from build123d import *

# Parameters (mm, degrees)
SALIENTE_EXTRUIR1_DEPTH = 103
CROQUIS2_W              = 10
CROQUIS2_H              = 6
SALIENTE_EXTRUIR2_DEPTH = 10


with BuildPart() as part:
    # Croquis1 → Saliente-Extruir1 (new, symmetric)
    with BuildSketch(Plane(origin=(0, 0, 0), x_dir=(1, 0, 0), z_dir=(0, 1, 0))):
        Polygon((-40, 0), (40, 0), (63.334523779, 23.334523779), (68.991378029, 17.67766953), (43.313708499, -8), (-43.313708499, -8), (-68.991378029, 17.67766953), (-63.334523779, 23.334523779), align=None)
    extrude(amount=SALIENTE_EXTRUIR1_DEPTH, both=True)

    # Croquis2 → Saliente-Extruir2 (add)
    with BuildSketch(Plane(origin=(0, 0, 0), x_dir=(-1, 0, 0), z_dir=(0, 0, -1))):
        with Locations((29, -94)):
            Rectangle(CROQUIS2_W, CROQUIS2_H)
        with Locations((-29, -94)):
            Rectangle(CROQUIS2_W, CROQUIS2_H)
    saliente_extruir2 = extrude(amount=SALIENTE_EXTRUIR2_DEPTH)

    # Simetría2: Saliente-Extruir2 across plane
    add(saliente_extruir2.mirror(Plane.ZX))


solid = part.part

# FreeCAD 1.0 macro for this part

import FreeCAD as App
import Part
import Sketcher
Q = App.Units.Quantity

doc = App.newDocument("Part")
params = doc.addObject("Spreadsheet::Sheet", "Params")
for row, (alias, value) in enumerate([
    ("sketch1_width", "80 mm"),
    ("sketch1_length", "33 mm"),
    ("sketch1_length2", "8 mm"),
    ("pad1_length", "206 mm"),
    ("sketch2_width", "10 mm"),
    ("sketch2_height", "6 mm"),
    ("pad2_length", "10 mm"),
], start=1):
    params.set(f"A{row}", alias)
    params.set(f"B{row}", "=" + value)
    params.setAlias(f"B{row}", alias)

body = doc.addObject("PartDesign::Body", "Body")

# Sketch on XZ plane
sketch1 = doc.addObject("Sketcher::SketchObject", "Sketch")
body.addObject(sketch1)
sketch1.AttachmentSupport = (doc.XZ_Plane, [""])
sketch1.MapMode = "FlatFace"
sketch1.addGeometry([
    Part.LineSegment(App.Vector(40, 0, 0), App.Vector(-40, 0, 0)),  # 0
    Part.LineSegment(App.Vector(-40, 0, 0), App.Vector(-63.334524, -23.334524, 0)),  # 1
    Part.LineSegment(App.Vector(-63.334524, -23.334524, 0), App.Vector(-68.991378, -17.67767, 0)),  # 2
    Part.LineSegment(App.Vector(-68.991378, -17.67767, 0), App.Vector(-43.313708, 8, 0)),  # 3
    Part.LineSegment(App.Vector(-43.313708, 8, 0), App.Vector(43.313708, 8, 0)),  # 4
    Part.LineSegment(App.Vector(43.313708, 8, 0), App.Vector(68.991378, -17.67767, 0)),  # 5
    Part.LineSegment(App.Vector(68.991378, -17.67767, 0), App.Vector(63.334524, -23.334524, 0)),  # 6
    Part.LineSegment(App.Vector(63.334524, -23.334524, 0), App.Vector(40, 0, 0)),  # 7
], False)
sketch1.addConstraint([
    Sketcher.Constraint("Coincident", 0, 2, 1, 1),
    Sketcher.Constraint("Coincident", 1, 2, 2, 1),
    Sketcher.Constraint("Coincident", 2, 2, 3, 1),
    Sketcher.Constraint("Coincident", 3, 2, 4, 1),
    Sketcher.Constraint("Coincident", 4, 2, 5, 1),
    Sketcher.Constraint("Coincident", 5, 2, 6, 1),
    Sketcher.Constraint("Coincident", 6, 2, 7, 1),
    Sketcher.Constraint("Coincident", 7, 2, 0, 1),
    Sketcher.Constraint("Horizontal", 0),
    Sketcher.Constraint("Horizontal", 4),
    Sketcher.Constraint("Symmetric", 0, 2, 7, 2, -1, 1),
    Sketcher.Constraint("Symmetric", 2, 2, 5, 2, -2),
    Sketcher.Constraint("Symmetric", 1, 2, 6, 2, -2),
    Sketcher.Constraint("Perpendicular", 1, 2),
    Sketcher.Constraint("Perpendicular", 2, 3),
    Sketcher.Constraint("Perpendicular", 3, 5),
    Sketcher.Constraint("Perpendicular", 5, 6),
    Sketcher.Constraint("DistanceX", 0, 2, 0, 1, Q("80 mm")),
    Sketcher.Constraint("Distance", 1, Q("33 mm")),
    Sketcher.Constraint("Distance", 2, Q("8 mm")),
    Sketcher.Constraint("DistanceY", -1, 1, 3, 2, Q("8 mm")),
])
sketch1.setExpression("Constraints[17]", "Params.sketch1_width")
sketch1.setExpression("Constraints[18]", "Params.sketch1_length")
sketch1.setExpression("Constraints[19]", "Params.sketch1_length2")
pad1 = doc.addObject("PartDesign::Pad", "Pad")
body.addObject(pad1)
pad1.Profile = sketch1
pad1.setExpression("Length", "Params.pad1_length")
pad1.Midplane = True

# Sketch on XY plane
sketch2 = doc.addObject("Sketcher::SketchObject", "Sketch001")
body.addObject(sketch2)
sketch2.AttachmentSupport = (doc.XY_Plane, [""])
sketch2.MapMode = "FlatFace"
sketch2.addGeometry([
    Part.LineSegment(App.Vector(-24, -91, 0), App.Vector(-24, -97, 0)),  # 0
    Part.LineSegment(App.Vector(-24, -97, 0), App.Vector(-34, -97, 0)),  # 1
    Part.LineSegment(App.Vector(-34, -97, 0), App.Vector(-34, -91, 0)),  # 2
    Part.LineSegment(App.Vector(-34, -91, 0), App.Vector(-24, -91, 0)),  # 3
    Part.LineSegment(App.Vector(34, -91, 0), App.Vector(34, -97, 0)),  # 4
    Part.LineSegment(App.Vector(34, -97, 0), App.Vector(24, -97, 0)),  # 5
    Part.LineSegment(App.Vector(24, -97, 0), App.Vector(24, -91, 0)),  # 6
    Part.LineSegment(App.Vector(24, -91, 0), App.Vector(34, -91, 0)),  # 7
], False)
sketch2.addConstraint([
    Sketcher.Constraint("Coincident", 0, 2, 1, 1),
    Sketcher.Constraint("Coincident", 1, 2, 2, 1),
    Sketcher.Constraint("Coincident", 2, 2, 3, 1),
    Sketcher.Constraint("Coincident", 3, 2, 0, 1),
    Sketcher.Constraint("Coincident", 4, 2, 5, 1),
    Sketcher.Constraint("Coincident", 5, 2, 6, 1),
    Sketcher.Constraint("Coincident", 6, 2, 7, 1),
    Sketcher.Constraint("Coincident", 7, 2, 4, 1),
    Sketcher.Constraint("Vertical", 0),
    Sketcher.Constraint("Horizontal", 1),
    Sketcher.Constraint("Vertical", 2),
    Sketcher.Constraint("Horizontal", 3),
    Sketcher.Constraint("Vertical", 4),
    Sketcher.Constraint("Horizontal", 5),
    Sketcher.Constraint("Vertical", 6),
    Sketcher.Constraint("Horizontal", 7),
    Sketcher.Constraint("Symmetric", 1, 2, 4, 2, -2),
    Sketcher.Constraint("Symmetric", 3, 2, 6, 2, -2),
    Sketcher.Constraint("DistanceX", 1, 2, 1, 1, Q("10 mm")),
    Sketcher.Constraint("DistanceY", 0, 2, 0, 1, Q("6 mm")),
    Sketcher.Constraint("DistanceX", 0, 2, -1, 1, Q("24 mm")),
    Sketcher.Constraint("DistanceY", 0, 2, -1, 1, Q("97 mm")),
])
sketch2.setExpression("Constraints[18]", "Params.sketch2_width")
sketch2.setExpression("Constraints[19]", "Params.sketch2_height")
pad2 = doc.addObject("PartDesign::Pad", "Pad001")
body.addObject(pad2)
pad2.Profile = sketch2
pad2.setExpression("Length", "Params.pad2_length")
pad2.Reversed = True
doc.recompute()

mirrored = doc.addObject("PartDesign::Mirrored", "Mirrored")
body.addObject(mirrored)
mirrored.Originals = [pad2]
mirrored.MirrorPlane = (doc.XZ_Plane, [""])
body.Tip = mirrored

doc.recompute()
